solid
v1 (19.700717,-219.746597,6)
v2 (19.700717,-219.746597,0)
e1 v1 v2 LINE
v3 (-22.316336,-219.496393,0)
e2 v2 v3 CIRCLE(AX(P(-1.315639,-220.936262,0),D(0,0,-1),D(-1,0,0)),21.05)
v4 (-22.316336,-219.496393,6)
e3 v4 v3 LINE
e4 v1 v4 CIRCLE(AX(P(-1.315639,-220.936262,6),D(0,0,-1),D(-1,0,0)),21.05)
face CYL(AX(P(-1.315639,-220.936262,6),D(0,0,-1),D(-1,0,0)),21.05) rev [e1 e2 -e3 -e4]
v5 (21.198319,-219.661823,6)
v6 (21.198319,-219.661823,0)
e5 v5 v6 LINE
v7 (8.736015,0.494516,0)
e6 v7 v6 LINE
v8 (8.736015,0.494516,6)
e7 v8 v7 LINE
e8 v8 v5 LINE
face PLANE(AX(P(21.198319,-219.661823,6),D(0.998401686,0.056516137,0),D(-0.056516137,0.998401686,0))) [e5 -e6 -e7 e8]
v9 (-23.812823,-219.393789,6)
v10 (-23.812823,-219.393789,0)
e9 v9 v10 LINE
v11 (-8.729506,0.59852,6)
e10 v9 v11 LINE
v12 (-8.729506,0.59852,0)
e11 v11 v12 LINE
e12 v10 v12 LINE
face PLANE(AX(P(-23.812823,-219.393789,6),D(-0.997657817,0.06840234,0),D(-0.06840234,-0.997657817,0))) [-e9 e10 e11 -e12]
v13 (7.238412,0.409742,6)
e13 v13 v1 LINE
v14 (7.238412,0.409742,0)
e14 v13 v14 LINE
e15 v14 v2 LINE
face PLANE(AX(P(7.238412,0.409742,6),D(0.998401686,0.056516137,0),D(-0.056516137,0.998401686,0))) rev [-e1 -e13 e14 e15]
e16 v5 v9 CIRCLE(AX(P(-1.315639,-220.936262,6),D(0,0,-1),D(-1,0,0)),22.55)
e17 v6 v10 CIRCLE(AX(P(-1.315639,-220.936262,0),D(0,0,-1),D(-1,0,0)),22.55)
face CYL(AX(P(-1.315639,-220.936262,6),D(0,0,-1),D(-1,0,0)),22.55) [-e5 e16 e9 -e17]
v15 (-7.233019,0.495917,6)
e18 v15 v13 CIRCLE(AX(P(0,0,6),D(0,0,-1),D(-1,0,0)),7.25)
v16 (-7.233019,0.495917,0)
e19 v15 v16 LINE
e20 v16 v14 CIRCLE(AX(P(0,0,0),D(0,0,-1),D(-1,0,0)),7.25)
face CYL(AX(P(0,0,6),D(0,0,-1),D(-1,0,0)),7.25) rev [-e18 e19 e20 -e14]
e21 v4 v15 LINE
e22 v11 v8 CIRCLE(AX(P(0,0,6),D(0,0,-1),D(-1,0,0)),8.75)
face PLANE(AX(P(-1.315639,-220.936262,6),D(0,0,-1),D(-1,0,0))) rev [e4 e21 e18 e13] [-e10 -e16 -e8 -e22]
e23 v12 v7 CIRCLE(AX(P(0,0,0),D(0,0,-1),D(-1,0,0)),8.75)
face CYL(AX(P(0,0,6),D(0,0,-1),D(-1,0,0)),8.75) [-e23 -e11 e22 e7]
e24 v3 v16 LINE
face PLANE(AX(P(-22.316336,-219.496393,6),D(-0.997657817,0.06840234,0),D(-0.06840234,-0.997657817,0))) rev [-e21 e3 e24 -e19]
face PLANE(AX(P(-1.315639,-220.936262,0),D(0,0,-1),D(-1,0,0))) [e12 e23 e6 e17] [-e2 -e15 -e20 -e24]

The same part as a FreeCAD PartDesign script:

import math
import FreeCAD as App
import Part
import Sketcher

doc = App.newDocument("Part")
body = doc.addObject("PartDesign::Body", "Body")

sketch1 = doc.addObject("Sketcher::SketchObject", "Sketch")
body.addObject(sketch1)
sketch1.AttachmentSupport = (doc.XY_Plane, [""])
sketch1.MapMode = "FlatFace"
sketch1.addGeometry([
    Part.LineSegment(App.Vector(-9, 1, 0), App.Vector(-24, -219, 0)),
    Part.ArcOfCircle(Part.Circle(App.Vector(-1, -221, 0), App.Vector(0, 0, 1), 23), math.radians(176), math.radians(363)),
    Part.LineSegment(App.Vector(21, -220, 0), App.Vector(9, 0, 0)),
    Part.ArcOfCircle(Part.Circle(App.Vector(0, 0, 0), App.Vector(0, 0, 1), 9), math.radians(3), math.radians(176)),
    Part.LineSegment(App.Vector(-22, -219, 0), App.Vector(-7, 0, 0)),
    Part.ArcOfCircle(Part.Circle(App.Vector(0, 0, 0), App.Vector(0, 0, 1), 7), math.radians(3), math.radians(176)),
    Part.LineSegment(App.Vector(7, 0, 0), App.Vector(20, -220, 0)),
    Part.ArcOfCircle(Part.Circle(App.Vector(-1, -221, 0), App.Vector(0, 0, 1), 21), math.radians(176), math.radians(363)),
], False)
sketch1.addConstraint([
    Sketcher.Constraint("Tangent", 0, 2, 1, 1),
    Sketcher.Constraint("Tangent", 1, 2, 2, 1),
    Sketcher.Constraint("Tangent", 2, 2, 3, 1),
    Sketcher.Constraint("Tangent", 3, 2, 0, 1),
    Sketcher.Constraint("Tangent", 4, 2, 5, 2),
    Sketcher.Constraint("Tangent", 5, 1, 6, 1),
    Sketcher.Constraint("Tangent", 6, 2, 7, 2),
    Sketcher.Constraint("Tangent", 7, 1, 4, 1),
    Sketcher.Constraint("Coincident", 3, 3, -1, 1),
    Sketcher.Constraint("Coincident", 5, 3, -1, 1),
    Sketcher.Constraint("Coincident", 7, 3, 1, 3),
    Sketcher.Constraint("Parallel", 0, 4),
    Sketcher.Constraint("Radius", 1, 22.55),
    Sketcher.Constraint("Radius", 3, 8.75),
    Sketcher.Constraint("Radius", 5, 7.25),
    Sketcher.Constraint("DistanceY", 2, 2, 4, 2, 0.001401),
    Sketcher.Constraint("Distance", 0, 220.508781),
])
pad1 = doc.addObject("PartDesign::Pad", "Pad")
body.addObject(pad1)
pad1.Profile = sketch1
pad1.Length = 6

doc.recompute()
